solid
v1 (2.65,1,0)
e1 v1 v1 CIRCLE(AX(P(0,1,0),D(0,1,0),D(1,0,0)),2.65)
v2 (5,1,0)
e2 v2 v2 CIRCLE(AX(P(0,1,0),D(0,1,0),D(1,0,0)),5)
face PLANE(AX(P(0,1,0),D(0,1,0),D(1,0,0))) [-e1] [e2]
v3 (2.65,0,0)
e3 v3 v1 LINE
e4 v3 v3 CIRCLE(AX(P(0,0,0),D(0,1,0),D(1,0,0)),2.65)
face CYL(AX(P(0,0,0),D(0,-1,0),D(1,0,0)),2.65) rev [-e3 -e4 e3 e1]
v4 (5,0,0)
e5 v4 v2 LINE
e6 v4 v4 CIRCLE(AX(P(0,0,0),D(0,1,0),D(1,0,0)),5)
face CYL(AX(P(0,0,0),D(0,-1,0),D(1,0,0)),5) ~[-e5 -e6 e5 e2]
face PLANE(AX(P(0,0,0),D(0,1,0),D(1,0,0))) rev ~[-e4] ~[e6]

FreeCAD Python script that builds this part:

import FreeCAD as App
import Part
import Sketcher
Q = App.Units.Quantity

doc = App.newDocument("Part")
body = doc.addObject("PartDesign::Body", "Body")

# Sketch on XZ plane
sketch1 = body.newObject("Sketcher::SketchObject", "Sketch")
sketch1.AttachmentSupport = (doc.getObject("XZ_Plane"), [""])
sketch1.MapMode = "FlatFace"
sketch1.addGeometry([
    Part.Circle(App.Vector(0, 0, 0), App.Vector(0, 0, 1), 5),
    Part.Circle(App.Vector(0, 0, 0), App.Vector(0, 0, 1), 2.6),
], False)
sketch1.addConstraint([
    Sketcher.Constraint("Coincident", 0, 3, -1, 1),
    Sketcher.Constraint("Coincident", 1, 3, -1, 1),
    Sketcher.Constraint("Diameter", 0, Q("10 mm")),
    Sketcher.Constraint("Diameter", 1, Q("5.3 mm")),
])
pad1 = body.newObject("PartDesign::Pad", "Pad")
pad1.Profile = sketch1
pad1.Length = 1
pad1.Reversed = True

doc.recompute()
